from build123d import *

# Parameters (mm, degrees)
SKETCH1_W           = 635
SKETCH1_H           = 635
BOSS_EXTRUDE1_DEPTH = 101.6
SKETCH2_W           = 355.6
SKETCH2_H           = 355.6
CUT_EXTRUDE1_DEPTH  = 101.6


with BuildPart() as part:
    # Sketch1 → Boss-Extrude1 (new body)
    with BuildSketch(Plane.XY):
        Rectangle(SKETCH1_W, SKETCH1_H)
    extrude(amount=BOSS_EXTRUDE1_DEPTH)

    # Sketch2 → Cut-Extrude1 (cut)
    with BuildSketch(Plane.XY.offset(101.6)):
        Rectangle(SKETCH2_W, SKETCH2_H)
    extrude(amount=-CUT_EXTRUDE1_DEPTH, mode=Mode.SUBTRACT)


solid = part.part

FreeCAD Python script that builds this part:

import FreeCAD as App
import Part
import Sketcher

V = App.Vector
Q = App.Units.Quantity

doc = App.newDocument("Part")
body = doc.addObject("PartDesign::Body", "Body")

sketch1 = doc.addObject("Sketcher::SketchObject", "Sketch")
body.addObject(sketch1)
sketch1.AttachmentSupport = (doc.XY_Plane, [""])
sketch1.MapMode = "FlatFace"
sketch1.addGeometry(Part.LineSegment(V(-317.5, 317.5, 0), V(-317.5, -317.5, 0)), False)
sketch1.addGeometry(Part.LineSegment(V(-317.5, -317.5, 0), V(317.5, -317.5, 0)), False)
sketch1.addGeometry(Part.LineSegment(V(317.5, -317.5, 0), V(317.5, 317.5, 0)), False)
sketch1.addGeometry(Part.LineSegment(V(317.5, 317.5, 0), V(-317.5, 317.5, 0)), False)
sketch1.addConstraint(Sketcher.Constraint("Coincident", 0, 2, 1, 1))
sketch1.addConstraint(Sketcher.Constraint("Coincident", 1, 2, 2, 1))
sketch1.addConstraint(Sketcher.Constraint("Coincident", 2, 2, 3, 1))
sketch1.addConstraint(Sketcher.Constraint("Coincident", 3, 2, 0, 1))
sketch1.addConstraint(Sketcher.Constraint("Vertical", 0))
sketch1.addConstraint(Sketcher.Constraint("Horizontal", 1))
sketch1.addConstraint(Sketcher.Constraint("Vertical", 2))
sketch1.addConstraint(Sketcher.Constraint("Horizontal", 3))
sketch1.addConstraint(Sketcher.Constraint("Symmetric", 0, 2, 2, 2, -1, 1))
sketch1.addConstraint(Sketcher.Constraint("Equal", 3, 0))
sketch1.addConstraint(Sketcher.Constraint("DistanceX", 1, 1, 1, 2, Q("25 in")))
pad1 = doc.addObject("PartDesign::Pad", "Pad")
body.addObject(pad1)
pad1.Profile = sketch1
pad1.Length = Q("4 in")

sketch2 = doc.addObject("Sketcher::SketchObject", "Sketch001")
body.addObject(sketch2)
sketch2.AttachmentSupport = (doc.XY_Plane, [""])
sketch2.MapMode = "FlatFace"
sketch2.AttachmentOffset = App.Placement(V(0, 0, 4 * 25.4), App.Rotation())
sketch2.addGeometry(Part.LineSegment(V(-177.8, 177.8, 0), V(-177.8, -177.8, 0)), False)
sketch2.addGeometry(Part.LineSegment(V(-177.8, -177.8, 0), V(177.8, -177.8, 0)), False)
sketch2.addGeometry(Part.LineSegment(V(177.8, -177.8, 0), V(177.8, 177.8, 0)), False)
sketch2.addGeometry(Part.LineSegment(V(177.8, 177.8, 0), V(-177.8, 177.8, 0)), False)
sketch2.addConstraint(Sketcher.Constraint("Coincident", 0, 2, 1, 1))
sketch2.addConstraint(Sketcher.Constraint("Coincident", 1, 2, 2, 1))
sketch2.addConstraint(Sketcher.Constraint("Coincident", 2, 2, 3, 1))
sketch2.addConstraint(Sketcher.Constraint("Coincident", 3, 2, 0, 1))
sketch2.addConstraint(Sketcher.Constraint("Vertical", 0))
sketch2.addConstraint(Sketcher.Constraint("Horizontal", 1))
sketch2.addConstraint(Sketcher.Constraint("Vertical", 2))
sketch2.addConstraint(Sketcher.Constraint("Horizontal", 3))
sketch2.addConstraint(Sketcher.Constraint("Symmetric", 0, 2, 2, 2, -1, 1))
sketch2.addConstraint(Sketcher.Constraint("Equal", 3, 0))
sketch2.addConstraint(Sketcher.Constraint("DistanceX", 1, 1, 1, 2, Q("14 in")))
pocket1 = doc.addObject("PartDesign::Pocket", "Pocket")
body.addObject(pocket1)
pocket1.Profile = sketch2
pocket1.Length = Q("4 in")

doc.recompute()
